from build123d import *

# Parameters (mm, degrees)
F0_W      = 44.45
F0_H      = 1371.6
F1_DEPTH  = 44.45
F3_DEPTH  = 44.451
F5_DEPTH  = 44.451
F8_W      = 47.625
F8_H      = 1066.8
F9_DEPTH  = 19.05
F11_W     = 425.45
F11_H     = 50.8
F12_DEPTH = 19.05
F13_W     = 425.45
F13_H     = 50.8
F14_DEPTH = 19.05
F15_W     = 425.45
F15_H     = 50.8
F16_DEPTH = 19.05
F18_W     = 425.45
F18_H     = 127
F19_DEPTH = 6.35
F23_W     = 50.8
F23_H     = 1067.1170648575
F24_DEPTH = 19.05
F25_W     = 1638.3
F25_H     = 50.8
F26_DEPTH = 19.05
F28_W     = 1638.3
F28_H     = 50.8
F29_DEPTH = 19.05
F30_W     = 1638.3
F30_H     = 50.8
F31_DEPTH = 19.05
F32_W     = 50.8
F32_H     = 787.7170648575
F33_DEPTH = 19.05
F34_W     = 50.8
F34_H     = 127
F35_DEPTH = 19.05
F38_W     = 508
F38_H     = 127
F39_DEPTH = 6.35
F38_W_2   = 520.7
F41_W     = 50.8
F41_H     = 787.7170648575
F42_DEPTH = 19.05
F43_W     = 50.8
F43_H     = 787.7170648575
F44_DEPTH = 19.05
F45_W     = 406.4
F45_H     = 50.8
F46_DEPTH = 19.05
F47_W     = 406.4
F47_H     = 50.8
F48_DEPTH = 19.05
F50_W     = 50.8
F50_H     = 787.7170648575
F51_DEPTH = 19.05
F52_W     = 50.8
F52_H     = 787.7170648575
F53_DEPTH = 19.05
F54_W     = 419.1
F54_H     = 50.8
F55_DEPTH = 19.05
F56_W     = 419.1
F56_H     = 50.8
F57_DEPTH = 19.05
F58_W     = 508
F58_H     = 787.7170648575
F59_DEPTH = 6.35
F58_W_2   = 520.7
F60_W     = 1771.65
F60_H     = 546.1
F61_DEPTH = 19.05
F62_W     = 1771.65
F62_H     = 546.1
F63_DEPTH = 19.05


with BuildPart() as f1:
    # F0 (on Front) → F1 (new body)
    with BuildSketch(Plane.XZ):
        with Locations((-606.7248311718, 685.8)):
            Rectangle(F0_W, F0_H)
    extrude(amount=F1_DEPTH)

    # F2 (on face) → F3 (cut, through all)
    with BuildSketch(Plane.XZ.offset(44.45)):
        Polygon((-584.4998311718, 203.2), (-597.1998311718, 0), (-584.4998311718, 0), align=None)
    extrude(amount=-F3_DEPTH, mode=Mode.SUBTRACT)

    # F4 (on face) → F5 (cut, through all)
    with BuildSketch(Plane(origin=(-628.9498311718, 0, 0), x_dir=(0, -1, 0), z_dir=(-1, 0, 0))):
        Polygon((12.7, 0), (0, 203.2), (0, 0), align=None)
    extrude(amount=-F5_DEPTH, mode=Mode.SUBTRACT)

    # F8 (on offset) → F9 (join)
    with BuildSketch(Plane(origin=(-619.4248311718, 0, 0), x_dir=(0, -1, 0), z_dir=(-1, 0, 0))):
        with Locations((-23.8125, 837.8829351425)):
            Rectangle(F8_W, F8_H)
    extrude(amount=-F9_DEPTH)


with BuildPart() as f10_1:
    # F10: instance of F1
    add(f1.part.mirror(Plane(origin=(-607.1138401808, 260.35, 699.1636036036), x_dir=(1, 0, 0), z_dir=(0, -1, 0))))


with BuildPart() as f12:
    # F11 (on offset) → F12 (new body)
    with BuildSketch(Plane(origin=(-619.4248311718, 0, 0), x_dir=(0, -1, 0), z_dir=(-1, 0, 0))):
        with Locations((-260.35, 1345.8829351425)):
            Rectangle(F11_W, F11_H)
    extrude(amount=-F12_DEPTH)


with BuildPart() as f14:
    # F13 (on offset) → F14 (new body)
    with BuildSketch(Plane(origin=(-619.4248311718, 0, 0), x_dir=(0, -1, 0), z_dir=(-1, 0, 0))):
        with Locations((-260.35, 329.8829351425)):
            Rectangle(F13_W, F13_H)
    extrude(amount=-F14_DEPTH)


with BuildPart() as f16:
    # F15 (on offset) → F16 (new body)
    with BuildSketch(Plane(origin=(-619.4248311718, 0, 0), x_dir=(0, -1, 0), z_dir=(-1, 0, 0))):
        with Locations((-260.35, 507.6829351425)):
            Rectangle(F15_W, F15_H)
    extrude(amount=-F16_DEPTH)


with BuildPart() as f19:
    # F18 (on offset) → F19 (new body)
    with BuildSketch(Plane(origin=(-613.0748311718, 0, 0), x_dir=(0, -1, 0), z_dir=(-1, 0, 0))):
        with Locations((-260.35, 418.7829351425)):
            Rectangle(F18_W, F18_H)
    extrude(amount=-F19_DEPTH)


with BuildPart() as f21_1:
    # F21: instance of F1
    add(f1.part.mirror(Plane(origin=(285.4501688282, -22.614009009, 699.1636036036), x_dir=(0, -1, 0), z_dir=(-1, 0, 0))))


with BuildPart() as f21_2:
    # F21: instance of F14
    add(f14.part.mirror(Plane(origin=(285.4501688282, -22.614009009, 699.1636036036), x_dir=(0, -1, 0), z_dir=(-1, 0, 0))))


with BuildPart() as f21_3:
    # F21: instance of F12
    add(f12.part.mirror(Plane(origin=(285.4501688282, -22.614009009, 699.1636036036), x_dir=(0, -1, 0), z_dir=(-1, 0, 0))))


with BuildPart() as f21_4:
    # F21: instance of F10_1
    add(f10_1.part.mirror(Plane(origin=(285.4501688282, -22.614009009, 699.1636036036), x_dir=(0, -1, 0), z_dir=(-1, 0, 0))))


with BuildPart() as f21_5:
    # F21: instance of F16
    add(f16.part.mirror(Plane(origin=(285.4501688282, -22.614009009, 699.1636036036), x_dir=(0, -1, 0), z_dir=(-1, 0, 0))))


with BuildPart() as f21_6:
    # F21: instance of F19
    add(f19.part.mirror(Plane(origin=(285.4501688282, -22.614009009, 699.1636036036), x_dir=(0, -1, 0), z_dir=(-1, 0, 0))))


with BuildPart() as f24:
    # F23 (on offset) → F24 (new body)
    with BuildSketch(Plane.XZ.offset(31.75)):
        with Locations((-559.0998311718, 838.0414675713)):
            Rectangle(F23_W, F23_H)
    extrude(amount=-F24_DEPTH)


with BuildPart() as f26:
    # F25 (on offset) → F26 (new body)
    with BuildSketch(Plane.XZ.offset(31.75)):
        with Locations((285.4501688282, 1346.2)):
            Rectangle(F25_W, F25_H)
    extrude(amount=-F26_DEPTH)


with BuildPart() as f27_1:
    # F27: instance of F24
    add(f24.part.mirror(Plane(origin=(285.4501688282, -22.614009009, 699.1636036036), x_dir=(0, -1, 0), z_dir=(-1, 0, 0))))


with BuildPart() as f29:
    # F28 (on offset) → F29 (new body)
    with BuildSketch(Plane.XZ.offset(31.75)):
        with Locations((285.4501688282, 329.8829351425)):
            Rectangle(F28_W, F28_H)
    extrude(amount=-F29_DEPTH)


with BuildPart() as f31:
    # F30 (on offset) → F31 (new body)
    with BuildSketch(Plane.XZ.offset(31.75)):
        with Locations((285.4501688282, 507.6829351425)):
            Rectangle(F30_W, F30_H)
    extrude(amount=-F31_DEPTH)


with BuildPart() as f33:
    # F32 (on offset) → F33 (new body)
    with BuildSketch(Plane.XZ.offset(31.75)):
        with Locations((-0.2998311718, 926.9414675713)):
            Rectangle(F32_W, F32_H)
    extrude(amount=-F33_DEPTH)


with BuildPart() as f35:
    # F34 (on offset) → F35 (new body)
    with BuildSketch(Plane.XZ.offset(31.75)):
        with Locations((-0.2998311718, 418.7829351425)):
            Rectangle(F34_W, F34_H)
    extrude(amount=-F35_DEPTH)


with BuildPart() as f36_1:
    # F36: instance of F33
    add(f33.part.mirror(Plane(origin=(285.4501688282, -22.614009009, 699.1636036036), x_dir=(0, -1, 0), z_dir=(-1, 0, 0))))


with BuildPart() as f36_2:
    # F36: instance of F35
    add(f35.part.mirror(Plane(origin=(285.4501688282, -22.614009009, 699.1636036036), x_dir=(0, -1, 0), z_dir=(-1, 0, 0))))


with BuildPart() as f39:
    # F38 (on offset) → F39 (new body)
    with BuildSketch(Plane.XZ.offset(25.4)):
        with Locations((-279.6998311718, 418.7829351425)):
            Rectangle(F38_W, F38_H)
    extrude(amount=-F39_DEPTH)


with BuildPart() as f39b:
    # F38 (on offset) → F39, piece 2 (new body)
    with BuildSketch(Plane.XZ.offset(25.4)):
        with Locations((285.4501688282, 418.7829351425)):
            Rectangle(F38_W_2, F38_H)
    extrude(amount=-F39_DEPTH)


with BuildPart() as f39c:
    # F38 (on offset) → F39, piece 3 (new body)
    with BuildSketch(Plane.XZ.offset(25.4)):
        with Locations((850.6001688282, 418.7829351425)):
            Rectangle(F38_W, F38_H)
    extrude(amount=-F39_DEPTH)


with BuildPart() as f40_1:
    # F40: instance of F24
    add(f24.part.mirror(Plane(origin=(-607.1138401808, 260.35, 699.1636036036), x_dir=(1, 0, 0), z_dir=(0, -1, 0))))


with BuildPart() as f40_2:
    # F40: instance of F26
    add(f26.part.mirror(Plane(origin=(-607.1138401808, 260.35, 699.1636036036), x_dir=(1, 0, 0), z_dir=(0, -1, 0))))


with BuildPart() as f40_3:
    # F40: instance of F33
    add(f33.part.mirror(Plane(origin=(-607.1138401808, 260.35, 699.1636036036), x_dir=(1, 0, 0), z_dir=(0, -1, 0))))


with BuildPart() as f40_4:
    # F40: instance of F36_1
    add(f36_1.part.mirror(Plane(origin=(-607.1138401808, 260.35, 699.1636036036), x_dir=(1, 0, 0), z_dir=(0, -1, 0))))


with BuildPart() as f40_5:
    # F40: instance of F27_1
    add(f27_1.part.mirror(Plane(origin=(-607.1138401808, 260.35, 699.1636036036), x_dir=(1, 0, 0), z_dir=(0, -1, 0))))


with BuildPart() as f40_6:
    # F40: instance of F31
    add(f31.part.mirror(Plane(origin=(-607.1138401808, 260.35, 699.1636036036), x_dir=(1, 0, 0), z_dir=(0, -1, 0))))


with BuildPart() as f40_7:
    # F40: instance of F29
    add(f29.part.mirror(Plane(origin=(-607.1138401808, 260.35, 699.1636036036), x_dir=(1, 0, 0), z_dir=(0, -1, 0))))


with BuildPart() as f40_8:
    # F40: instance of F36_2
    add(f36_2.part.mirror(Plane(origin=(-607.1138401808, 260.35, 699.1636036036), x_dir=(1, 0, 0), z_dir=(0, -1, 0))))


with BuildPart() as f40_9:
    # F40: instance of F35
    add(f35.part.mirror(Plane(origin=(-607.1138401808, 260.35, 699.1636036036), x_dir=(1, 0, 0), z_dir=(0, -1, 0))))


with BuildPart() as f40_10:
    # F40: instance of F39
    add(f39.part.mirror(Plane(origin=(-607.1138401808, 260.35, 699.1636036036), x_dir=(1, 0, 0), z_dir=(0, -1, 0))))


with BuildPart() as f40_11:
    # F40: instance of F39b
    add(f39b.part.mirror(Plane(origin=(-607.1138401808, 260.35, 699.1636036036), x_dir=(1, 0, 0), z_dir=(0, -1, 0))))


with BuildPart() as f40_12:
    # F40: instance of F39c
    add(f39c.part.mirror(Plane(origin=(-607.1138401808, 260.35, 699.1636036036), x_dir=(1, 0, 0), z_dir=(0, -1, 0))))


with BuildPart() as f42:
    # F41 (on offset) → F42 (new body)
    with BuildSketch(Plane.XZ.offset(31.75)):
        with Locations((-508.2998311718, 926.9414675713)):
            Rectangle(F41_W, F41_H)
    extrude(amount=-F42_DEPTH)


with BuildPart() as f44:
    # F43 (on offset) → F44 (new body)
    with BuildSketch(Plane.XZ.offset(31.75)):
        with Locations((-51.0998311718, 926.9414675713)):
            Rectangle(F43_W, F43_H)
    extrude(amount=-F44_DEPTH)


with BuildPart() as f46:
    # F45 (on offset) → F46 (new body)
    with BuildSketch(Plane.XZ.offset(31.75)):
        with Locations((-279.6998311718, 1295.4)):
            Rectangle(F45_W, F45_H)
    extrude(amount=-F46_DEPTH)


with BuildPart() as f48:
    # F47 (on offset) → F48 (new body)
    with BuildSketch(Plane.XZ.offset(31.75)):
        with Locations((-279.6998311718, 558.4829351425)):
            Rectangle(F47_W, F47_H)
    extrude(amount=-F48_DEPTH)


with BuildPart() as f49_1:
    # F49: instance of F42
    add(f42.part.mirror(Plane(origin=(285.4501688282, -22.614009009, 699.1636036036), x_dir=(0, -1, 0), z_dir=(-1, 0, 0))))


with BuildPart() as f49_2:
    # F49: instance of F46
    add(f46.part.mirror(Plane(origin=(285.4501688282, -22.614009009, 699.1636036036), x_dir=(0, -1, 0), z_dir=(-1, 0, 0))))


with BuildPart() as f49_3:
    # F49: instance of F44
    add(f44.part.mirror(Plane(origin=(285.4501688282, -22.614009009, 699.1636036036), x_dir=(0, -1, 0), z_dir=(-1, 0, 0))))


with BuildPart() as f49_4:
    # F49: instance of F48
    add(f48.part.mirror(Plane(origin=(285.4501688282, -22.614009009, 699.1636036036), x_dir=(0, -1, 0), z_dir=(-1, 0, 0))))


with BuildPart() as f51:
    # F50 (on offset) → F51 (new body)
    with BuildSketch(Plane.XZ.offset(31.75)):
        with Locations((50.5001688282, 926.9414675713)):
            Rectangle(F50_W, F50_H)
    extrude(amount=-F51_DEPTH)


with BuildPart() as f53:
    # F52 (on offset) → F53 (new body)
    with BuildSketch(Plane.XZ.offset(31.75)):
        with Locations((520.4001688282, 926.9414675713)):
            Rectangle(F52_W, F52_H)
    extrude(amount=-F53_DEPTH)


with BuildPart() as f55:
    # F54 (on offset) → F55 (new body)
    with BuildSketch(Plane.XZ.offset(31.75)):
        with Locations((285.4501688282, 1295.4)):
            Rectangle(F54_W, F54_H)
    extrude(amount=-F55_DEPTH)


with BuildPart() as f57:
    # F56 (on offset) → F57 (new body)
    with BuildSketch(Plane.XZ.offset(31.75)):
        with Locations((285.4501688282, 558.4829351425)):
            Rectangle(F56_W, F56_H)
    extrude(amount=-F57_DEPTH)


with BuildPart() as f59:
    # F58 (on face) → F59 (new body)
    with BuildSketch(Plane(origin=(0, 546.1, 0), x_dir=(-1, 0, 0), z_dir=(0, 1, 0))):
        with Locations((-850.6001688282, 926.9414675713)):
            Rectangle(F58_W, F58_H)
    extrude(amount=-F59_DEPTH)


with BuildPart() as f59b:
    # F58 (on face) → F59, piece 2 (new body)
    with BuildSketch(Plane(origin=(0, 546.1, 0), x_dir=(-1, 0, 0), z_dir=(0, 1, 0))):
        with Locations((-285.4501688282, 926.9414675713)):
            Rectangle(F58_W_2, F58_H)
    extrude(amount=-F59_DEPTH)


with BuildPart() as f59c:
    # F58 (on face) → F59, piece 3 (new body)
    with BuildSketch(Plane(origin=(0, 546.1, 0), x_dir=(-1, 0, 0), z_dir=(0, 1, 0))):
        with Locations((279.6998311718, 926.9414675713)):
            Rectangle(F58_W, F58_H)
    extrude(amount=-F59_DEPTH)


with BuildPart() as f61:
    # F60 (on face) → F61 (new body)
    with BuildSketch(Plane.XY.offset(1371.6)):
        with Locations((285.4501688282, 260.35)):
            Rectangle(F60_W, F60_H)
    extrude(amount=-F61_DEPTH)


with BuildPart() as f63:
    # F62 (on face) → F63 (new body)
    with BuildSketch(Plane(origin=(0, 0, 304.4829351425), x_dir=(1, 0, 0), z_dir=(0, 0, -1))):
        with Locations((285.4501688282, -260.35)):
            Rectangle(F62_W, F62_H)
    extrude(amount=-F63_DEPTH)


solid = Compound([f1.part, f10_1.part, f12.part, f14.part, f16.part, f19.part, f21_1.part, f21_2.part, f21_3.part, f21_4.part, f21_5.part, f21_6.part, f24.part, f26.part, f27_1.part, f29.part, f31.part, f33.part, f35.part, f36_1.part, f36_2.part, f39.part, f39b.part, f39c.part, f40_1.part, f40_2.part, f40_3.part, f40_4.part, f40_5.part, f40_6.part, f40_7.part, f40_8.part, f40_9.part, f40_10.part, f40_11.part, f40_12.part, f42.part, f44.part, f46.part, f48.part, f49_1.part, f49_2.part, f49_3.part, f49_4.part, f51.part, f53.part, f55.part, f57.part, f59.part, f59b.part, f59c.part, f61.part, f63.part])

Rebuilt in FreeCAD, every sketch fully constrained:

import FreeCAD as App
import Part
import Sketcher

V = App.Vector
Q = App.Units.Quantity


def add_polygon(sketch, points):
    """Adds a closed chain of lines whose ends are joined by coincident constraints."""
    first, n = sketch.GeometryCount, len(points)
    for a, b in zip(points, points[1:] + points[:1]):
        sketch.addGeometry(Part.LineSegment(App.Vector(*a, 0), App.Vector(*b, 0)), False)
    for i in range(n):
        sketch.addConstraint(Sketcher.Constraint("Coincident", first + i, 2, first + (i + 1) % n, 1))

doc = App.newDocument("Part")
body = doc.addObject("PartDesign::Body", "Body")

sketch1 = body.newObject("Sketcher::SketchObject", "Sketch")
sketch1.AttachmentSupport = (doc.getObject("XZ_Plane"), [""])
sketch1.MapMode = "FlatFace"
add_polygon(sketch1, [(-629, 1372), (-629, 0), (-584, 0), (-584, 1372)])
sketch1.addConstraint(Sketcher.Constraint("Vertical", 0))
sketch1.addConstraint(Sketcher.Constraint("Horizontal", 1))
sketch1.addConstraint(Sketcher.Constraint("Vertical", 2))
sketch1.addConstraint(Sketcher.Constraint("Horizontal", 3))
sketch1.addConstraint(Sketcher.Constraint("PointOnObject", 0, 2, -1))
sketch1.addConstraint(Sketcher.Constraint("DistanceY", 0, 2, 0, 1, Q("54 in")))
sketch1.addConstraint(Sketcher.Constraint("DistanceX", 1, 1, 1, 2, Q("1.75 in")))
sketch1.addConstraint(Sketcher.Constraint("DistanceX", 0, 2, -1, 1, Q("628.949831 mm")))
pad1 = body.newObject("PartDesign::Pad", "Pad")
pad1.Profile = sketch1
pad1.Length = Q("1.75 in")

sketch2 = body.newObject("Sketcher::SketchObject", "Sketch001")
sketch2.AttachmentSupport = (doc.getObject("XZ_Plane"), [""])
sketch2.MapMode = "FlatFace"
sketch2.AttachmentOffset = App.Placement(V(0, 0, 1.75 * 25.4), App.Rotation())
add_polygon(sketch2, [(-584, 203), (-597, 0), (-584, 0)])
sketch2.addConstraint(Sketcher.Constraint("Horizontal", 1))
sketch2.addConstraint(Sketcher.Constraint("Vertical", 2))
sketch2.addConstraint(Sketcher.Constraint("PointOnObject", 0, 2, -1))
sketch2.addConstraint(Sketcher.Constraint("DistanceY", 2, 1, 2, 2, Q("8 in")))
sketch2.addConstraint(Sketcher.Constraint("DistanceX", 1, 1, 1, 2, Q("0.5 in")))
sketch2.addConstraint(Sketcher.Constraint("DistanceX", 0, 2, -1, 1, Q("597.199831 mm")))
pocket1 = body.newObject("PartDesign::Pocket", "Pocket")
pocket1.Profile = sketch2
pocket1.Type = "ThroughAll"

sketch3 = body.newObject("Sketcher::SketchObject", "Sketch002")
sketch3.AttachmentSupport = (doc.getObject("YZ_Plane"), [""])
sketch3.MapMode = "FlatFace"
sketch3.AttachmentOffset = App.Placement(V(0, 0, -628.949831), App.Rotation())
add_polygon(sketch3, [(-13, 0), (0, 203), (0, 0)])
sketch3.addConstraint(Sketcher.Constraint("Vertical", 1))
sketch3.addConstraint(Sketcher.Constraint("Horizontal", 2))
sketch3.addConstraint(Sketcher.Constraint("Coincident", 1, 2, -1, 1))
sketch3.addConstraint(Sketcher.Constraint("DistanceY", 1, 2, 1, 1, Q("8 in")))
sketch3.addConstraint(Sketcher.Constraint("DistanceX", 2, 2, 2, 1, Q("0.5 in")))
pocket2 = body.newObject("PartDesign::Pocket", "Pocket001")
pocket2.Profile = sketch3
pocket2.Type = "ThroughAll"
pocket2.Reversed = True

sketch4 = body.newObject("Sketcher::SketchObject", "Sketch003")
sketch4.AttachmentSupport = (doc.getObject("YZ_Plane"), [""])
sketch4.MapMode = "FlatFace"
sketch4.AttachmentOffset = App.Placement(V(0, 0, -619.424831), App.Rotation())
add_polygon(sketch4, [(48, 1371), (48, 304), (0, 304), (0, 1371)])
sketch4.addConstraint(Sketcher.Constraint("Vertical", 0))
sketch4.addConstraint(Sketcher.Constraint("Horizontal", 1))
sketch4.addConstraint(Sketcher.Constraint("Vertical", 2))
sketch4.addConstraint(Sketcher.Constraint("Horizontal", 3))
sketch4.addConstraint(Sketcher.Constraint("PointOnObject", 1, 2, -2))
sketch4.addConstraint(Sketcher.Constraint("DistanceY", 0, 2, 0, 1, Q("42 in")))
sketch4.addConstraint(Sketcher.Constraint("DistanceX", 1, 2, 1, 1, Q("1.875 in")))
sketch4.addConstraint(Sketcher.Constraint("DistanceY", -1, 1, 0, 2, Q("304.482935 mm")))
pad2 = body.newObject("PartDesign::Pad", "Pad001")
pad2.Profile = sketch4
pad2.Length = Q("0.75 in")
body2 = doc.addObject("PartDesign::Body", "Body001")
doc.recompute()

mirroring = doc.addObject("Part::Mirroring", "Mirroring")
mirroring.Source = body
mirroring.Base = V(-607.11384, 260.35, 699.163604)
mirroring.Normal = V(0, -1, 0)
body2.BaseFeature = mirroring
doc.recompute()
body3 = doc.addObject("PartDesign::Body", "Body002")

sketch5 = body3.newObject("Sketcher::SketchObject", "Sketch004")
sketch5.AttachmentSupport = (doc.getObject("YZ_Plane002"), [""])
sketch5.MapMode = "FlatFace"
sketch5.AttachmentOffset = App.Placement(V(0, 0, -619.424831), App.Rotation())
add_polygon(sketch5, [(473, 1371), (473, 1320), (48, 1320), (48, 1371)])
sketch5.addConstraint(Sketcher.Constraint("Vertical", 0))
sketch5.addConstraint(Sketcher.Constraint("Horizontal", 1))
sketch5.addConstraint(Sketcher.Constraint("Vertical", 2))
sketch5.addConstraint(Sketcher.Constraint("Horizontal", 3))
sketch5.addConstraint(Sketcher.Constraint("DistanceY", 0, 2, 0, 1, Q("2 in")))
sketch5.addConstraint(Sketcher.Constraint("DistanceX", 1, 2, 1, 1, Q("16.75 in")))
sketch5.addConstraint(Sketcher.Constraint("DistanceX", -1, 1, 0, 2, Q("18.625 in")))
sketch5.addConstraint(Sketcher.Constraint("DistanceY", -1, 1, 0, 2, Q("1320.482935 mm")))
pad3 = body3.newObject("PartDesign::Pad", "Pad002")
pad3.Profile = sketch5
pad3.Length = Q("0.75 in")
body4 = doc.addObject("PartDesign::Body", "Body003")

sketch6 = body4.newObject("Sketcher::SketchObject", "Sketch005")
sketch6.AttachmentSupport = (doc.getObject("YZ_Plane003"), [""])
sketch6.MapMode = "FlatFace"
sketch6.AttachmentOffset = App.Placement(V(0, 0, -619.424831), App.Rotation())
add_polygon(sketch6, [(473, 355), (473, 304), (48, 304), (48, 355)])
sketch6.addConstraint(Sketcher.Constraint("Vertical", 0))
sketch6.addConstraint(Sketcher.Constraint("Horizontal", 1))
sketch6.addConstraint(Sketcher.Constraint("Vertical", 2))
sketch6.addConstraint(Sketcher.Constraint("Horizontal", 3))
sketch6.addConstraint(Sketcher.Constraint("DistanceY", 0, 2, 0, 1, Q("2 in")))
sketch6.addConstraint(Sketcher.Constraint("DistanceX", 1, 2, 1, 1, Q("16.75 in")))
sketch6.addConstraint(Sketcher.Constraint("DistanceX", -1, 1, 0, 2, Q("18.625 in")))
sketch6.addConstraint(Sketcher.Constraint("DistanceY", -1, 1, 0, 2, Q("304.482935 mm")))
pad4 = body4.newObject("PartDesign::Pad", "Pad003")
pad4.Profile = sketch6
pad4.Length = Q("0.75 in")
body5 = doc.addObject("PartDesign::Body", "Body004")

sketch7 = body5.newObject("Sketcher::SketchObject", "Sketch006")
sketch7.AttachmentSupport = (doc.getObject("YZ_Plane004"), [""])
sketch7.MapMode = "FlatFace"
sketch7.AttachmentOffset = App.Placement(V(0, 0, -619.424831), App.Rotation())
add_polygon(sketch7, [(473, 533), (473, 482), (48, 482), (48, 533)])
sketch7.addConstraint(Sketcher.Constraint("Vertical", 0))
sketch7.addConstraint(Sketcher.Constraint("Horizontal", 1))
sketch7.addConstraint(Sketcher.Constraint("Vertical", 2))
sketch7.addConstraint(Sketcher.Constraint("Horizontal", 3))
sketch7.addConstraint(Sketcher.Constraint("DistanceY", 0, 2, 0, 1, Q("2 in")))
sketch7.addConstraint(Sketcher.Constraint("DistanceX", 1, 2, 1, 1, Q("16.75 in")))
sketch7.addConstraint(Sketcher.Constraint("DistanceX", -1, 1, 0, 2, Q("18.625 in")))
sketch7.addConstraint(Sketcher.Constraint("DistanceY", -1, 1, 0, 2, Q("482.282935 mm")))
pad5 = body5.newObject("PartDesign::Pad", "Pad004")
pad5.Profile = sketch7
pad5.Length = Q("0.75 in")
body6 = doc.addObject("PartDesign::Body", "Body005")

sketch8 = body6.newObject("Sketcher::SketchObject", "Sketch007")
sketch8.AttachmentSupport = (doc.getObject("YZ_Plane005"), [""])
sketch8.MapMode = "FlatFace"
sketch8.AttachmentOffset = App.Placement(V(0, 0, -613.074831), App.Rotation())
add_polygon(sketch8, [(473, 482), (473, 355), (48, 355), (48, 482)])
sketch8.addConstraint(Sketcher.Constraint("Vertical", 0))
sketch8.addConstraint(Sketcher.Constraint("Horizontal", 1))
sketch8.addConstraint(Sketcher.Constraint("Vertical", 2))
sketch8.addConstraint(Sketcher.Constraint("Horizontal", 3))
sketch8.addConstraint(Sketcher.Constraint("DistanceY", 0, 2, 0, 1, Q("5 in")))
sketch8.addConstraint(Sketcher.Constraint("DistanceX", 1, 2, 1, 1, Q("16.75 in")))
sketch8.addConstraint(Sketcher.Constraint("DistanceX", -1, 1, 0, 2, Q("18.625 in")))
sketch8.addConstraint(Sketcher.Constraint("DistanceY", -1, 1, 0, 2, Q("355.282935 mm")))
pad6 = body6.newObject("PartDesign::Pad", "Pad005")
pad6.Profile = sketch8
pad6.Length = Q("0.25 in")
body7 = doc.addObject("PartDesign::Body", "Body006")
doc.recompute()

mirroring2 = doc.addObject("Part::Mirroring", "Mirroring001")
mirroring2.Source = body
mirroring2.Base = V(285.450169, -22.614009, 699.163604)
mirroring2.Normal = V(-1, 0, 0)
body7.BaseFeature = mirroring2
doc.recompute()
body8 = doc.addObject("PartDesign::Body", "Body007")
doc.recompute()

mirroring3 = doc.addObject("Part::Mirroring", "Mirroring002")
mirroring3.Source = body4
mirroring3.Base = V(285.450169, -22.614009, 699.163604)
mirroring3.Normal = V(-1, 0, 0)
body8.BaseFeature = mirroring3
doc.recompute()
body9 = doc.addObject("PartDesign::Body", "Body008")
doc.recompute()

mirroring4 = doc.addObject("Part::Mirroring", "Mirroring003")
mirroring4.Source = body3
mirroring4.Base = V(285.450169, -22.614009, 699.163604)
mirroring4.Normal = V(-1, 0, 0)
body9.BaseFeature = mirroring4
doc.recompute()
body10 = doc.addObject("PartDesign::Body", "Body009")
doc.recompute()

mirroring5 = doc.addObject("Part::Mirroring", "Mirroring004")
mirroring5.Source = body2
mirroring5.Base = V(285.450169, -22.614009, 699.163604)
mirroring5.Normal = V(-1, 0, 0)
body10.BaseFeature = mirroring5
doc.recompute()
body11 = doc.addObject("PartDesign::Body", "Body010")
doc.recompute()

mirroring6 = doc.addObject("Part::Mirroring", "Mirroring005")
mirroring6.Source = body5
mirroring6.Base = V(285.450169, -22.614009, 699.163604)
mirroring6.Normal = V(-1, 0, 0)
body11.BaseFeature = mirroring6
doc.recompute()
body12 = doc.addObject("PartDesign::Body", "Body011")
doc.recompute()

mirroring7 = doc.addObject("Part::Mirroring", "Mirroring006")
mirroring7.Source = body6
mirroring7.Base = V(285.450169, -22.614009, 699.163604)
mirroring7.Normal = V(-1, 0, 0)
body12.BaseFeature = mirroring7
doc.recompute()
body13 = doc.addObject("PartDesign::Body", "Body012")

sketch9 = body13.newObject("Sketcher::SketchObject", "Sketch008")
sketch9.AttachmentSupport = (doc.getObject("XZ_Plane012"), [""])
sketch9.MapMode = "FlatFace"
sketch9.AttachmentOffset = App.Placement(V(0, 0, 1.25 * 25.4), App.Rotation())
add_polygon(sketch9, [(-584, 1372), (-584, 304), (-534, 304), (-534, 1372)])
sketch9.addConstraint(Sketcher.Constraint("Vertical", 0))
sketch9.addConstraint(Sketcher.Constraint("Horizontal", 1))
sketch9.addConstraint(Sketcher.Constraint("Vertical", 2))
sketch9.addConstraint(Sketcher.Constraint("Horizontal", 3))
sketch9.addConstraint(Sketcher.Constraint("DistanceX", 1, 1, 1, 2, Q("2 in")))
sketch9.addConstraint(Sketcher.Constraint("DistanceY", -1, 1, 2, 2, Q("54 in")))
sketch9.addConstraint(Sketcher.Constraint("DistanceY", 0, 2, 0, 1, Q("1067.117065 mm")))
sketch9.addConstraint(Sketcher.Constraint("DistanceX", 0, 2, -1, 1, Q("584.499831 mm")))
pad7 = body13.newObject("PartDesign::Pad", "Pad006")
pad7.Profile = sketch9
pad7.Length = Q("0.75 in")
pad7.Reversed = True
body14 = doc.addObject("PartDesign::Body", "Body013")

sketch10 = body14.newObject("Sketcher::SketchObject", "Sketch009")
sketch10.AttachmentSupport = (doc.getObject("XZ_Plane013"), [""])
sketch10.MapMode = "FlatFace"
sketch10.AttachmentOffset = App.Placement(V(0, 0, 1.25 * 25.4), App.Rotation())
add_polygon(sketch10, [(-534, 1372), (-534, 1321), (1105, 1321), (1105, 1372)])
sketch10.addConstraint(Sketcher.Constraint("Vertical", 0))
sketch10.addConstraint(Sketcher.Constraint("Horizontal", 1))
sketch10.addConstraint(Sketcher.Constraint("Vertical", 2))
sketch10.addConstraint(Sketcher.Constraint("Horizontal", 3))
sketch10.addConstraint(Sketcher.Constraint("DistanceY", 0, 2, 0, 1, Q("2 in")))
sketch10.addConstraint(Sketcher.Constraint("DistanceX", 1, 1, 1, 2, Q("64.5 in")))
sketch10.addConstraint(Sketcher.Constraint("DistanceY", -1, 1, 0, 2, Q("52 in")))
sketch10.addConstraint(Sketcher.Constraint("DistanceX", 0, 2, -1, 1, Q("533.699831 mm")))
pad8 = body14.newObject("PartDesign::Pad", "Pad007")
pad8.Profile = sketch10
pad8.Length = Q("0.75 in")
pad8.Reversed = True
body15 = doc.addObject("PartDesign::Body", "Body014")
doc.recompute()

mirroring8 = doc.addObject("Part::Mirroring", "Mirroring007")
mirroring8.Source = body13
mirroring8.Base = V(285.450169, -22.614009, 699.163604)
mirroring8.Normal = V(-1, 0, 0)
body15.BaseFeature = mirroring8
doc.recompute()
body16 = doc.addObject("PartDesign::Body", "Body015")

sketch11 = body16.newObject("Sketcher::SketchObject", "Sketch010")
sketch11.AttachmentSupport = (doc.getObject("XZ_Plane015"), [""])
sketch11.MapMode = "FlatFace"
sketch11.AttachmentOffset = App.Placement(V(0, 0, 1.25 * 25.4), App.Rotation())
add_polygon(sketch11, [(-534, 355), (-534, 304), (1105, 304), (1105, 355)])
sketch11.addConstraint(Sketcher.Constraint("Vertical", 0))
sketch11.addConstraint(Sketcher.Constraint("Horizontal", 1))
sketch11.addConstraint(Sketcher.Constraint("Vertical", 2))
sketch11.addConstraint(Sketcher.Constraint("Horizontal", 3))
sketch11.addConstraint(Sketcher.Constraint("DistanceY", 0, 2, 0, 1, Q("2 in")))
sketch11.addConstraint(Sketcher.Constraint("DistanceX", 1, 1, 1, 2, Q("64.5 in")))
sketch11.addConstraint(Sketcher.Constraint("DistanceX", 0, 2, -1, 1, Q("533.699831 mm")))
sketch11.addConstraint(Sketcher.Constraint("DistanceY", -1, 1, 0, 2, Q("304.482935 mm")))
pad9 = body16.newObject("PartDesign::Pad", "Pad008")
pad9.Profile = sketch11
pad9.Length = Q("0.75 in")
pad9.Reversed = True
body17 = doc.addObject("PartDesign::Body", "Body016")

sketch12 = body17.newObject("Sketcher::SketchObject", "Sketch011")
sketch12.AttachmentSupport = (doc.getObject("XZ_Plane016"), [""])
sketch12.MapMode = "FlatFace"
sketch12.AttachmentOffset = App.Placement(V(0, 0, 1.25 * 25.4), App.Rotation())
add_polygon(sketch12, [(-534, 533), (-534, 482), (1105, 482), (1105, 533)])
sketch12.addConstraint(Sketcher.Constraint("Vertical", 0))
sketch12.addConstraint(Sketcher.Constraint("Horizontal", 1))
sketch12.addConstraint(Sketcher.Constraint("Vertical", 2))
sketch12.addConstraint(Sketcher.Constraint("Horizontal", 3))
sketch12.addConstraint(Sketcher.Constraint("DistanceY", 0, 2, 0, 1, Q("2 in")))
sketch12.addConstraint(Sketcher.Constraint("DistanceX", 1, 1, 1, 2, Q("64.5 in")))
sketch12.addConstraint(Sketcher.Constraint("DistanceX", 0, 2, -1, 1, Q("533.699831 mm")))
sketch12.addConstraint(Sketcher.Constraint("DistanceY", -1, 1, 0, 2, Q("482.282935 mm")))
pad10 = body17.newObject("PartDesign::Pad", "Pad009")
pad10.Profile = sketch12
pad10.Length = Q("0.75 in")
pad10.Reversed = True
body18 = doc.addObject("PartDesign::Body", "Body017")

sketch13 = body18.newObject("Sketcher::SketchObject", "Sketch012")
sketch13.AttachmentSupport = (doc.getObject("XZ_Plane017"), [""])
sketch13.MapMode = "FlatFace"
sketch13.AttachmentOffset = App.Placement(V(0, 0, 1.25 * 25.4), App.Rotation())
add_polygon(sketch13, [(-26, 1321), (-26, 533), (25, 533), (25, 1321)])
sketch13.addConstraint(Sketcher.Constraint("Vertical", 0))
sketch13.addConstraint(Sketcher.Constraint("Horizontal", 1))
sketch13.addConstraint(Sketcher.Constraint("Vertical", 2))
sketch13.addConstraint(Sketcher.Constraint("Horizontal", 3))
sketch13.addConstraint(Sketcher.Constraint("DistanceX", 1, 1, 1, 2, Q("2 in")))
sketch13.addConstraint(Sketcher.Constraint("DistanceY", -1, 1, 2, 2, Q("52 in")))
sketch13.addConstraint(Sketcher.Constraint("DistanceY", 0, 2, 0, 1, Q("787.717065 mm")))
sketch13.addConstraint(Sketcher.Constraint("DistanceX", 0, 2, -1, 1, Q("25.699831 mm")))
pad11 = body18.newObject("PartDesign::Pad", "Pad010")
pad11.Profile = sketch13
pad11.Length = Q("0.75 in")
pad11.Reversed = True
body19 = doc.addObject("PartDesign::Body", "Body018")

sketch14 = body19.newObject("Sketcher::SketchObject", "Sketch013")
sketch14.AttachmentSupport = (doc.getObject("XZ_Plane018"), [""])
sketch14.MapMode = "FlatFace"
sketch14.AttachmentOffset = App.Placement(V(0, 0, 1.25 * 25.4), App.Rotation())
add_polygon(sketch14, [(-26, 482), (-26, 355), (25, 355), (25, 482)])
sketch14.addConstraint(Sketcher.Constraint("Vertical", 0))
sketch14.addConstraint(Sketcher.Constraint("Horizontal", 1))
sketch14.addConstraint(Sketcher.Constraint("Vertical", 2))
sketch14.addConstraint(Sketcher.Constraint("Horizontal", 3))
sketch14.addConstraint(Sketcher.Constraint("DistanceX", 1, 1, 1, 2, Q("2 in")))
sketch14.addConstraint(Sketcher.Constraint("DistanceY", 0, 2, 0, 1, Q("5 in")))
sketch14.addConstraint(Sketcher.Constraint("DistanceX", 0, 2, -1, 1, Q("25.699831 mm")))
sketch14.addConstraint(Sketcher.Constraint("DistanceY", -1, 1, 0, 2, Q("355.282935 mm")))
pad12 = body19.newObject("PartDesign::Pad", "Pad011")
pad12.Profile = sketch14
pad12.Length = Q("0.75 in")
pad12.Reversed = True
body20 = doc.addObject("PartDesign::Body", "Body019")
doc.recompute()

mirroring9 = doc.addObject("Part::Mirroring", "Mirroring008")
mirroring9.Source = body18
mirroring9.Base = V(285.450169, -22.614009, 699.163604)
mirroring9.Normal = V(-1, 0, 0)
body20.BaseFeature = mirroring9
doc.recompute()
body21 = doc.addObject("PartDesign::Body", "Body020")
doc.recompute()

mirroring10 = doc.addObject("Part::Mirroring", "Mirroring009")
mirroring10.Source = body19
mirroring10.Base = V(285.450169, -22.614009, 699.163604)
mirroring10.Normal = V(-1, 0, 0)
body21.BaseFeature = mirroring10
doc.recompute()
body22 = doc.addObject("PartDesign::Body", "Body021")

sketch15 = body22.newObject("Sketcher::SketchObject", "Sketch014")
sketch15.AttachmentSupport = (doc.getObject("XZ_Plane021"), [""])
sketch15.MapMode = "FlatFace"
sketch15.AttachmentOffset = App.Placement(V(0, 0, 1 * 25.4), App.Rotation())
add_polygon(sketch15, [(-534, 482), (-534, 355), (-26, 355), (-26, 482)])
sketch15.addConstraint(Sketcher.Constraint("Vertical", 0))
sketch15.addConstraint(Sketcher.Constraint("Horizontal", 1))
sketch15.addConstraint(Sketcher.Constraint("Vertical", 2))
sketch15.addConstraint(Sketcher.Constraint("Horizontal", 3))
sketch15.addConstraint(Sketcher.Constraint("DistanceX", 1, 1, 1, 2, Q("20 in")))
sketch15.addConstraint(Sketcher.Constraint("DistanceY", 0, 2, 0, 1, Q("5 in")))
sketch15.addConstraint(Sketcher.Constraint("DistanceX", 0, 2, -1, 1, Q("533.699831 mm")))
sketch15.addConstraint(Sketcher.Constraint("DistanceY", -1, 1, 0, 2, Q("355.282935 mm")))
pad13 = body22.newObject("PartDesign::Pad", "Pad012")
pad13.Profile = sketch15
pad13.Length = Q("0.25 in")
pad13.Reversed = True
body23 = doc.addObject("PartDesign::Body", "Body022")

sketch16 = body23.newObject("Sketcher::SketchObject", "Sketch015")
sketch16.AttachmentSupport = (doc.getObject("XZ_Plane022"), [""])
sketch16.MapMode = "FlatFace"
sketch16.AttachmentOffset = App.Placement(V(0, 0, 1 * 25.4), App.Rotation())
add_polygon(sketch16, [(25, 482), (25, 355), (546, 355), (546, 482)])
sketch16.addConstraint(Sketcher.Constraint("Vertical", 0))
sketch16.addConstraint(Sketcher.Constraint("Horizontal", 1))
sketch16.addConstraint(Sketcher.Constraint("Vertical", 2))
sketch16.addConstraint(Sketcher.Constraint("Horizontal", 3))
sketch16.addConstraint(Sketcher.Constraint("DistanceY", 0, 2, 0, 1, Q("5 in")))
sketch16.addConstraint(Sketcher.Constraint("DistanceX", 1, 1, 1, 2, Q("20.5 in")))
sketch16.addConstraint(Sketcher.Constraint("DistanceX", -1, 1, 0, 2, Q("25.100169 mm")))
sketch16.addConstraint(Sketcher.Constraint("DistanceY", -1, 1, 0, 2, Q("355.282935 mm")))
pad14 = body23.newObject("PartDesign::Pad", "Pad013")
pad14.Profile = sketch16
pad14.Length = Q("0.25 in")
pad14.Reversed = True
body24 = doc.addObject("PartDesign::Body", "Body023")

sketch17 = body24.newObject("Sketcher::SketchObject", "Sketch016")
sketch17.AttachmentSupport = (doc.getObject("XZ_Plane023"), [""])
sketch17.MapMode = "FlatFace"
sketch17.AttachmentOffset = App.Placement(V(0, 0, 1 * 25.4), App.Rotation())
add_polygon(sketch17, [(597, 482), (597, 355), (1105, 355), (1105, 482)])
sketch17.addConstraint(Sketcher.Constraint("Vertical", 0))
sketch17.addConstraint(Sketcher.Constraint("Horizontal", 1))
sketch17.addConstraint(Sketcher.Constraint("Vertical", 2))
sketch17.addConstraint(Sketcher.Constraint("Horizontal", 3))
sketch17.addConstraint(Sketcher.Constraint("DistanceX", 1, 1, 1, 2, Q("20 in")))
sketch17.addConstraint(Sketcher.Constraint("DistanceY", 0, 2, 0, 1, Q("5 in")))
sketch17.addConstraint(Sketcher.Constraint("DistanceX", -1, 1, 0, 2, Q("596.600169 mm")))
sketch17.addConstraint(Sketcher.Constraint("DistanceY", -1, 1, 0, 2, Q("355.282935 mm")))
pad15 = body24.newObject("PartDesign::Pad", "Pad014")
pad15.Profile = sketch17
pad15.Length = Q("0.25 in")
pad15.Reversed = True
body25 = doc.addObject("PartDesign::Body", "Body024")
doc.recompute()

mirroring11 = doc.addObject("Part::Mirroring", "Mirroring010")
mirroring11.Source = body13
mirroring11.Base = V(-607.11384, 260.35, 699.163604)
mirroring11.Normal = V(0, -1, 0)
body25.BaseFeature = mirroring11
doc.recompute()
body26 = doc.addObject("PartDesign::Body", "Body025")
doc.recompute()

mirroring12 = doc.addObject("Part::Mirroring", "Mirroring011")
mirroring12.Source = body14
mirroring12.Base = V(-607.11384, 260.35, 699.163604)
mirroring12.Normal = V(0, -1, 0)
body26.BaseFeature = mirroring12
doc.recompute()
body27 = doc.addObject("PartDesign::Body", "Body026")
doc.recompute()

mirroring13 = doc.addObject("Part::Mirroring", "Mirroring012")
mirroring13.Source = body18
mirroring13.Base = V(-607.11384, 260.35, 699.163604)
mirroring13.Normal = V(0, -1, 0)
body27.BaseFeature = mirroring13
doc.recompute()
body28 = doc.addObject("PartDesign::Body", "Body027")
doc.recompute()

mirroring14 = doc.addObject("Part::Mirroring", "Mirroring013")
mirroring14.Source = body20
mirroring14.Base = V(-607.11384, 260.35, 699.163604)
mirroring14.Normal = V(0, -1, 0)
body28.BaseFeature = mirroring14
doc.recompute()
body29 = doc.addObject("PartDesign::Body", "Body028")
doc.recompute()

mirroring15 = doc.addObject("Part::Mirroring", "Mirroring014")
mirroring15.Source = body15
mirroring15.Base = V(-607.11384, 260.35, 699.163604)
mirroring15.Normal = V(0, -1, 0)
body29.BaseFeature = mirroring15
doc.recompute()
body30 = doc.addObject("PartDesign::Body", "Body029")
doc.recompute()

mirroring16 = doc.addObject("Part::Mirroring", "Mirroring015")
mirroring16.Source = body17
mirroring16.Base = V(-607.11384, 260.35, 699.163604)
mirroring16.Normal = V(0, -1, 0)
body30.BaseFeature = mirroring16
doc.recompute()
body31 = doc.addObject("PartDesign::Body", "Body030")
doc.recompute()

mirroring17 = doc.addObject("Part::Mirroring", "Mirroring016")
mirroring17.Source = body16
mirroring17.Base = V(-607.11384, 260.35, 699.163604)
mirroring17.Normal = V(0, -1, 0)
body31.BaseFeature = mirroring17
doc.recompute()
body32 = doc.addObject("PartDesign::Body", "Body031")
doc.recompute()

mirroring18 = doc.addObject("Part::Mirroring", "Mirroring017")
mirroring18.Source = body21
mirroring18.Base = V(-607.11384, 260.35, 699.163604)
mirroring18.Normal = V(0, -1, 0)
body32.BaseFeature = mirroring18
doc.recompute()
body33 = doc.addObject("PartDesign::Body", "Body032")
doc.recompute()

mirroring19 = doc.addObject("Part::Mirroring", "Mirroring018")
mirroring19.Source = body19
mirroring19.Base = V(-607.11384, 260.35, 699.163604)
mirroring19.Normal = V(0, -1, 0)
body33.BaseFeature = mirroring19
doc.recompute()
body34 = doc.addObject("PartDesign::Body", "Body033")
doc.recompute()

mirroring20 = doc.addObject("Part::Mirroring", "Mirroring019")
mirroring20.Source = body22
mirroring20.Base = V(-607.11384, 260.35, 699.163604)
mirroring20.Normal = V(0, -1, 0)
body34.BaseFeature = mirroring20
doc.recompute()
body35 = doc.addObject("PartDesign::Body", "Body034")
doc.recompute()

mirroring21 = doc.addObject("Part::Mirroring", "Mirroring020")
mirroring21.Source = body23
mirroring21.Base = V(-607.11384, 260.35, 699.163604)
mirroring21.Normal = V(0, -1, 0)
body35.BaseFeature = mirroring21
doc.recompute()
body36 = doc.addObject("PartDesign::Body", "Body035")
doc.recompute()

mirroring22 = doc.addObject("Part::Mirroring", "Mirroring021")
mirroring22.Source = body24
mirroring22.Base = V(-607.11384, 260.35, 699.163604)
mirroring22.Normal = V(0, -1, 0)
body36.BaseFeature = mirroring22
doc.recompute()
body37 = doc.addObject("PartDesign::Body", "Body036")

sketch18 = body37.newObject("Sketcher::SketchObject", "Sketch017")
sketch18.AttachmentSupport = (doc.getObject("XZ_Plane036"), [""])
sketch18.MapMode = "FlatFace"
sketch18.AttachmentOffset = App.Placement(V(0, 0, 1.25 * 25.4), App.Rotation())
add_polygon(sketch18, [(-534, 1321), (-534, 533), (-483, 533), (-483, 1321)])
sketch18.addConstraint(Sketcher.Constraint("Vertical", 0))
sketch18.addConstraint(Sketcher.Constraint("Horizontal", 1))
sketch18.addConstraint(Sketcher.Constraint("Vertical", 2))
sketch18.addConstraint(Sketcher.Constraint("Horizontal", 3))
sketch18.addConstraint(Sketcher.Constraint("DistanceX", 1, 1, 1, 2, Q("2 in")))
sketch18.addConstraint(Sketcher.Constraint("DistanceY", -1, 1, 2, 2, Q("52 in")))
sketch18.addConstraint(Sketcher.Constraint("DistanceY", 0, 2, 0, 1, Q("787.717065 mm")))
sketch18.addConstraint(Sketcher.Constraint("DistanceX", 0, 2, -1, 1, Q("533.699831 mm")))
pad16 = body37.newObject("PartDesign::Pad", "Pad015")
pad16.Profile = sketch18
pad16.Length = Q("0.75 in")
pad16.Reversed = True
body38 = doc.addObject("PartDesign::Body", "Body037")

sketch19 = body38.newObject("Sketcher::SketchObject", "Sketch018")
sketch19.AttachmentSupport = (doc.getObject("XZ_Plane037"), [""])
sketch19.MapMode = "FlatFace"
sketch19.AttachmentOffset = App.Placement(V(0, 0, 1.25 * 25.4), App.Rotation())
add_polygon(sketch19, [(-76, 1321), (-76, 533), (-26, 533), (-26, 1321)])
sketch19.addConstraint(Sketcher.Constraint("Vertical", 0))
sketch19.addConstraint(Sketcher.Constraint("Horizontal", 1))
sketch19.addConstraint(Sketcher.Constraint("Vertical", 2))
sketch19.addConstraint(Sketcher.Constraint("Horizontal", 3))
sketch19.addConstraint(Sketcher.Constraint("DistanceX", 1, 1, 1, 2, Q("2 in")))
sketch19.addConstraint(Sketcher.Constraint("DistanceY", -1, 1, 2, 2, Q("52 in")))
sketch19.addConstraint(Sketcher.Constraint("DistanceY", 0, 2, 0, 1, Q("787.717065 mm")))
sketch19.addConstraint(Sketcher.Constraint("DistanceX", 0, 2, -1, 1, Q("76.499831 mm")))
pad17 = body38.newObject("PartDesign::Pad", "Pad016")
pad17.Profile = sketch19
pad17.Length = Q("0.75 in")
pad17.Reversed = True
body39 = doc.addObject("PartDesign::Body", "Body038")

sketch20 = body39.newObject("Sketcher::SketchObject", "Sketch019")
sketch20.AttachmentSupport = (doc.getObject("XZ_Plane038"), [""])
sketch20.MapMode = "FlatFace"
sketch20.AttachmentOffset = App.Placement(V(0, 0, 1.25 * 25.4), App.Rotation())
add_polygon(sketch20, [(-483, 1321), (-483, 1270), (-76, 1270), (-76, 1321)])
sketch20.addConstraint(Sketcher.Constraint("Vertical", 0))
sketch20.addConstraint(Sketcher.Constraint("Horizontal", 1))
sketch20.addConstraint(Sketcher.Constraint("Vertical", 2))
sketch20.addConstraint(Sketcher.Constraint("Horizontal", 3))
sketch20.addConstraint(Sketcher.Constraint("DistanceX", 1, 1, 1, 2, Q("16 in")))
sketch20.addConstraint(Sketcher.Constraint("DistanceY", 0, 2, 0, 1, Q("2 in")))
sketch20.addConstraint(Sketcher.Constraint("DistanceY", -1, 1, 0, 2, Q("50 in")))
sketch20.addConstraint(Sketcher.Constraint("DistanceX", 0, 2, -1, 1, Q("482.899831 mm")))
pad18 = body39.newObject("PartDesign::Pad", "Pad017")
pad18.Profile = sketch20
pad18.Length = Q("0.75 in")
pad18.Reversed = True
body40 = doc.addObject("PartDesign::Body", "Body039")

sketch21 = body40.newObject("Sketcher::SketchObject", "Sketch020")
sketch21.AttachmentSupport = (doc.getObject("XZ_Plane039"), [""])
sketch21.MapMode = "FlatFace"
sketch21.AttachmentOffset = App.Placement(V(0, 0, 1.25 * 25.4), App.Rotation())
add_polygon(sketch21, [(-483, 584), (-483, 533), (-76, 533), (-76, 584)])
sketch21.addConstraint(Sketcher.Constraint("Vertical", 0))
sketch21.addConstraint(Sketcher.Constraint("Horizontal", 1))
sketch21.addConstraint(Sketcher.Constraint("Vertical", 2))
sketch21.addConstraint(Sketcher.Constraint("Horizontal", 3))
sketch21.addConstraint(Sketcher.Constraint("DistanceX", 1, 1, 1, 2, Q("16 in")))
sketch21.addConstraint(Sketcher.Constraint("DistanceY", 0, 2, 0, 1, Q("2 in")))
sketch21.addConstraint(Sketcher.Constraint("DistanceX", 0, 2, -1, 1, Q("482.899831 mm")))
sketch21.addConstraint(Sketcher.Constraint("DistanceY", -1, 1, 0, 2, Q("533.082935 mm")))
pad19 = body40.newObject("PartDesign::Pad", "Pad018")
pad19.Profile = sketch21
pad19.Length = Q("0.75 in")
pad19.Reversed = True
body41 = doc.addObject("PartDesign::Body", "Body040")
doc.recompute()

mirroring23 = doc.addObject("Part::Mirroring", "Mirroring022")
mirroring23.Source = body37
mirroring23.Base = V(285.450169, -22.614009, 699.163604)
mirroring23.Normal = V(-1, 0, 0)
body41.BaseFeature = mirroring23
doc.recompute()
body42 = doc.addObject("PartDesign::Body", "Body041")
doc.recompute()

mirroring24 = doc.addObject("Part::Mirroring", "Mirroring023")
mirroring24.Source = body39
mirroring24.Base = V(285.450169, -22.614009, 699.163604)
mirroring24.Normal = V(-1, 0, 0)
body42.BaseFeature = mirroring24
doc.recompute()
body43 = doc.addObject("PartDesign::Body", "Body042")
doc.recompute()

mirroring25 = doc.addObject("Part::Mirroring", "Mirroring024")
mirroring25.Source = body38
mirroring25.Base = V(285.450169, -22.614009, 699.163604)
mirroring25.Normal = V(-1, 0, 0)
body43.BaseFeature = mirroring25
doc.recompute()
body44 = doc.addObject("PartDesign::Body", "Body043")
doc.recompute()

mirroring26 = doc.addObject("Part::Mirroring", "Mirroring025")
mirroring26.Source = body40
mirroring26.Base = V(285.450169, -22.614009, 699.163604)
mirroring26.Normal = V(-1, 0, 0)
body44.BaseFeature = mirroring26
doc.recompute()
body45 = doc.addObject("PartDesign::Body", "Body044")

sketch22 = body45.newObject("Sketcher::SketchObject", "Sketch021")
sketch22.AttachmentSupport = (doc.getObject("XZ_Plane044"), [""])
sketch22.MapMode = "FlatFace"
sketch22.AttachmentOffset = App.Placement(V(0, 0, 1.25 * 25.4), App.Rotation())
add_polygon(sketch22, [(25, 1321), (25, 533), (76, 533), (76, 1321)])
sketch22.addConstraint(Sketcher.Constraint("Vertical", 0))
sketch22.addConstraint(Sketcher.Constraint("Horizontal", 1))
sketch22.addConstraint(Sketcher.Constraint("Vertical", 2))
sketch22.addConstraint(Sketcher.Constraint("Horizontal", 3))
sketch22.addConstraint(Sketcher.Constraint("DistanceX", 1, 1, 1, 2, Q("2 in")))
sketch22.addConstraint(Sketcher.Constraint("DistanceY", -1, 1, 2, 2, Q("52 in")))
sketch22.addConstraint(Sketcher.Constraint("DistanceY", 0, 2, 0, 1, Q("787.717065 mm")))
sketch22.addConstraint(Sketcher.Constraint("DistanceX", -1, 1, 0, 2, Q("25.100169 mm")))
pad20 = body45.newObject("PartDesign::Pad", "Pad019")
pad20.Profile = sketch22
pad20.Length = Q("0.75 in")
pad20.Reversed = True
body46 = doc.addObject("PartDesign::Body", "Body045")

sketch23 = body46.newObject("Sketcher::SketchObject", "Sketch022")
sketch23.AttachmentSupport = (doc.getObject("XZ_Plane045"), [""])
sketch23.MapMode = "FlatFace"
sketch23.AttachmentOffset = App.Placement(V(0, 0, 1.25 * 25.4), App.Rotation())
add_polygon(sketch23, [(495, 1321), (495, 533), (546, 533), (546, 1321)])
sketch23.addConstraint(Sketcher.Constraint("Vertical", 0))
sketch23.addConstraint(Sketcher.Constraint("Horizontal", 1))
sketch23.addConstraint(Sketcher.Constraint("Vertical", 2))
sketch23.addConstraint(Sketcher.Constraint("Horizontal", 3))
sketch23.addConstraint(Sketcher.Constraint("DistanceX", 1, 1, 1, 2, Q("2 in")))
sketch23.addConstraint(Sketcher.Constraint("DistanceY", -1, 1, 2, 2, Q("52 in")))
sketch23.addConstraint(Sketcher.Constraint("DistanceY", 0, 2, 0, 1, Q("787.717065 mm")))
sketch23.addConstraint(Sketcher.Constraint("DistanceX", -1, 1, 0, 2, Q("495.000169 mm")))
pad21 = body46.newObject("PartDesign::Pad", "Pad020")
pad21.Profile = sketch23
pad21.Length = Q("0.75 in")
pad21.Reversed = True
body47 = doc.addObject("PartDesign::Body", "Body046")

sketch24 = body47.newObject("Sketcher::SketchObject", "Sketch023")
sketch24.AttachmentSupport = (doc.getObject("XZ_Plane046"), [""])
sketch24.MapMode = "FlatFace"
sketch24.AttachmentOffset = App.Placement(V(0, 0, 1.25 * 25.4), App.Rotation())
add_polygon(sketch24, [(76, 1321), (76, 1270), (495, 1270), (495, 1321)])
sketch24.addConstraint(Sketcher.Constraint("Vertical", 0))
sketch24.addConstraint(Sketcher.Constraint("Horizontal", 1))
sketch24.addConstraint(Sketcher.Constraint("Vertical", 2))
sketch24.addConstraint(Sketcher.Constraint("Horizontal", 3))
sketch24.addConstraint(Sketcher.Constraint("DistanceY", 0, 2, 0, 1, Q("2 in")))
sketch24.addConstraint(Sketcher.Constraint("DistanceX", 1, 1, 1, 2, Q("16.5 in")))
sketch24.addConstraint(Sketcher.Constraint("DistanceY", -1, 1, 0, 2, Q("50 in")))
sketch24.addConstraint(Sketcher.Constraint("DistanceX", -1, 1, 0, 2, Q("75.900169 mm")))
pad22 = body47.newObject("PartDesign::Pad", "Pad021")
pad22.Profile = sketch24
pad22.Length = Q("0.75 in")
pad22.Reversed = True
body48 = doc.addObject("PartDesign::Body", "Body047")

sketch25 = body48.newObject("Sketcher::SketchObject", "Sketch024")
sketch25.AttachmentSupport = (doc.getObject("XZ_Plane047"), [""])
sketch25.MapMode = "FlatFace"
sketch25.AttachmentOffset = App.Placement(V(0, 0, 1.25 * 25.4), App.Rotation())
add_polygon(sketch25, [(76, 584), (76, 533), (495, 533), (495, 584)])
sketch25.addConstraint(Sketcher.Constraint("Vertical", 0))
sketch25.addConstraint(Sketcher.Constraint("Horizontal", 1))
sketch25.addConstraint(Sketcher.Constraint("Vertical", 2))
sketch25.addConstraint(Sketcher.Constraint("Horizontal", 3))
sketch25.addConstraint(Sketcher.Constraint("DistanceY", 0, 2, 0, 1, Q("2 in")))
sketch25.addConstraint(Sketcher.Constraint("DistanceX", 1, 1, 1, 2, Q("16.5 in")))
sketch25.addConstraint(Sketcher.Constraint("DistanceX", -1, 1, 0, 2, Q("75.900169 mm")))
sketch25.addConstraint(Sketcher.Constraint("DistanceY", -1, 1, 0, 2, Q("533.082935 mm")))
pad23 = body48.newObject("PartDesign::Pad", "Pad022")
pad23.Profile = sketch25
pad23.Length = Q("0.75 in")
pad23.Reversed = True
body49 = doc.addObject("PartDesign::Body", "Body048")

sketch26 = body49.newObject("Sketcher::SketchObject", "Sketch025")
sketch26.AttachmentSupport = (doc.getObject("XZ_Plane048"), [""])
sketch26.MapMode = "FlatFace"
sketch26.AttachmentOffset = App.Placement(V(0, 0, -21.5 * 25.4), App.Rotation())
add_polygon(sketch26, [(1105, 1321), (1105, 533), (597, 533), (597, 1321)])
sketch26.addConstraint(Sketcher.Constraint("Vertical", 0))
sketch26.addConstraint(Sketcher.Constraint("Horizontal", 1))
sketch26.addConstraint(Sketcher.Constraint("Vertical", 2))
sketch26.addConstraint(Sketcher.Constraint("Horizontal", 3))
sketch26.addConstraint(Sketcher.Constraint("DistanceX", 1, 2, 1, 1, Q("20 in")))
sketch26.addConstraint(Sketcher.Constraint("DistanceY", -1, 1, 2, 2, Q("52 in")))
sketch26.addConstraint(Sketcher.Constraint("DistanceY", 0, 2, 0, 1, Q("787.717065 mm")))
sketch26.addConstraint(Sketcher.Constraint("DistanceX", -1, 1, 0, 2, Q("1104.600169 mm")))
pad24 = body49.newObject("PartDesign::Pad", "Pad023")
pad24.Profile = sketch26
pad24.Length = Q("0.25 in")
body50 = doc.addObject("PartDesign::Body", "Body049")

sketch27 = body50.newObject("Sketcher::SketchObject", "Sketch026")
sketch27.AttachmentSupport = (doc.getObject("XZ_Plane049"), [""])
sketch27.MapMode = "FlatFace"
sketch27.AttachmentOffset = App.Placement(V(0, 0, -21.5 * 25.4), App.Rotation())
add_polygon(sketch27, [(546, 1321), (546, 533), (25, 533), (25, 1321)])
sketch27.addConstraint(Sketcher.Constraint("Vertical", 0))
sketch27.addConstraint(Sketcher.Constraint("Horizontal", 1))
sketch27.addConstraint(Sketcher.Constraint("Vertical", 2))
sketch27.addConstraint(Sketcher.Constraint("Horizontal", 3))
sketch27.addConstraint(Sketcher.Constraint("DistanceX", 1, 2, 1, 1, Q("20.5 in")))
sketch27.addConstraint(Sketcher.Constraint("DistanceY", -1, 1, 2, 2, Q("52 in")))
sketch27.addConstraint(Sketcher.Constraint("DistanceY", 0, 2, 0, 1, Q("787.717065 mm")))
sketch27.addConstraint(Sketcher.Constraint("DistanceX", -1, 1, 0, 2, Q("545.800169 mm")))
pad25 = body50.newObject("PartDesign::Pad", "Pad024")
pad25.Profile = sketch27
pad25.Length = Q("0.25 in")
body51 = doc.addObject("PartDesign::Body", "Body050")

sketch28 = body51.newObject("Sketcher::SketchObject", "Sketch027")
sketch28.AttachmentSupport = (doc.getObject("XZ_Plane050"), [""])
sketch28.MapMode = "FlatFace"
sketch28.AttachmentOffset = App.Placement(V(0, 0, -21.5 * 25.4), App.Rotation())
add_polygon(sketch28, [(-26, 1321), (-26, 533), (-534, 533), (-534, 1321)])
sketch28.addConstraint(Sketcher.Constraint("Vertical", 0))
sketch28.addConstraint(Sketcher.Constraint("Horizontal", 1))
sketch28.addConstraint(Sketcher.Constraint("Vertical", 2))
sketch28.addConstraint(Sketcher.Constraint("Horizontal", 3))
sketch28.addConstraint(Sketcher.Constraint("DistanceX", 1, 2, 1, 1, Q("20 in")))
sketch28.addConstraint(Sketcher.Constraint("DistanceY", -1, 1, 2, 2, Q("52 in")))
sketch28.addConstraint(Sketcher.Constraint("DistanceY", 0, 2, 0, 1, Q("787.717065 mm")))
sketch28.addConstraint(Sketcher.Constraint("DistanceX", 0, 2, -1, 1, Q("25.699831 mm")))
pad26 = body51.newObject("PartDesign::Pad", "Pad025")
pad26.Profile = sketch28
pad26.Length = Q("0.25 in")
body52 = doc.addObject("PartDesign::Body", "Body051")

sketch29 = body52.newObject("Sketcher::SketchObject", "Sketch028")
sketch29.AttachmentSupport = (doc.getObject("XY_Plane051"), [""])
sketch29.MapMode = "FlatFace"
sketch29.AttachmentOffset = App.Placement(V(0, 0, 54 * 25.4), App.Rotation())
add_polygon(sketch29, [(-600, 533), (-600, -13), (1171, -13), (1171, 533)])
sketch29.addConstraint(Sketcher.Constraint("Vertical", 0))
sketch29.addConstraint(Sketcher.Constraint("Horizontal", 1))
sketch29.addConstraint(Sketcher.Constraint("Vertical", 2))
sketch29.addConstraint(Sketcher.Constraint("Horizontal", 3))
sketch29.addConstraint(Sketcher.Constraint("DistanceY", 0, 2, 0, 1, Q("21.5 in")))
sketch29.addConstraint(Sketcher.Constraint("DistanceY", -1, 1, 2, 2, Q("21 in")))
sketch29.addConstraint(Sketcher.Constraint("DistanceX", 1, 1, 1, 2, Q("69.75 in")))
sketch29.addConstraint(Sketcher.Constraint("DistanceX", 0, 2, -1, 1, Q("600.374831 mm")))
pad27 = body52.newObject("PartDesign::Pad", "Pad026")
pad27.Profile = sketch29
pad27.Length = Q("0.75 in")
pad27.Reversed = True
body53 = doc.addObject("PartDesign::Body", "Body052")

sketch30 = body53.newObject("Sketcher::SketchObject", "Sketch029")
sketch30.AttachmentSupport = (doc.getObject("XY_Plane052"), [""])
sketch30.MapMode = "FlatFace"
sketch30.AttachmentOffset = App.Placement(V(0, 0, 304.482935), App.Rotation())
add_polygon(sketch30, [(-600, -13), (-600, 533), (1171, 533), (1171, -13)])
sketch30.addConstraint(Sketcher.Constraint("Vertical", 0))
sketch30.addConstraint(Sketcher.Constraint("Horizontal", 1))
sketch30.addConstraint(Sketcher.Constraint("Vertical", 2))
sketch30.addConstraint(Sketcher.Constraint("Horizontal", 3))
sketch30.addConstraint(Sketcher.Constraint("DistanceY", 0, 1, 0, 2, Q("21.5 in")))
sketch30.addConstraint(Sketcher.Constraint("DistanceY", -1, 1, 0, 2, Q("21 in")))
sketch30.addConstraint(Sketcher.Constraint("DistanceX", 1, 1, 1, 2, Q("69.75 in")))
sketch30.addConstraint(Sketcher.Constraint("DistanceX", 0, 2, -1, 1, Q("600.374831 mm")))
pad28 = body53.newObject("PartDesign::Pad", "Pad027")
pad28.Profile = sketch30
pad28.Length = Q("0.75 in")

doc.recompute()
